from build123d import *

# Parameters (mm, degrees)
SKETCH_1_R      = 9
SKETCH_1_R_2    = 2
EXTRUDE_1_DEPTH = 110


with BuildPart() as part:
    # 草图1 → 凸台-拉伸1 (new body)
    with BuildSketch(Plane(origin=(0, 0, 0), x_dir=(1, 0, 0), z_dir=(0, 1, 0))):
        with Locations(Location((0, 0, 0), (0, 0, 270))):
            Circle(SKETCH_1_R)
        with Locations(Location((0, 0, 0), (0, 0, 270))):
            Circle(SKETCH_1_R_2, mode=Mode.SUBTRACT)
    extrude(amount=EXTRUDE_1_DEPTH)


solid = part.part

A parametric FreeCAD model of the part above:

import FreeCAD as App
import Part
import Sketcher
Q = App.Units.Quantity

doc = App.newDocument("Part")
body = doc.addObject("PartDesign::Body", "Body")

sketch1 = body.newObject("Sketcher::SketchObject", "Sketch")
sketch1.AttachmentSupport = (doc.getObject("XZ_Plane"), [""])
sketch1.MapMode = "FlatFace"
sketch1.addGeometry([
    Part.Circle(App.Vector(0, 0, 0), App.Vector(0, 0, 1), 9),
    Part.Circle(App.Vector(0, 0, 0), App.Vector(0, 0, 1), 2),
], False)
sketch1.addConstraint([
    Sketcher.Constraint("Coincident", 0, 3, -1, 1),
    Sketcher.Constraint("Coincident", 1, 3, -1, 1),
    Sketcher.Constraint("Diameter", 0, Q("18 mm")),
    Sketcher.Constraint("Diameter", 1, Q("4 mm")),
])
pad1 = body.newObject("PartDesign::Pad", "Pad")
pad1.Profile = sketch1
pad1.Length = 110
pad1.Reversed = True

doc.recompute()
